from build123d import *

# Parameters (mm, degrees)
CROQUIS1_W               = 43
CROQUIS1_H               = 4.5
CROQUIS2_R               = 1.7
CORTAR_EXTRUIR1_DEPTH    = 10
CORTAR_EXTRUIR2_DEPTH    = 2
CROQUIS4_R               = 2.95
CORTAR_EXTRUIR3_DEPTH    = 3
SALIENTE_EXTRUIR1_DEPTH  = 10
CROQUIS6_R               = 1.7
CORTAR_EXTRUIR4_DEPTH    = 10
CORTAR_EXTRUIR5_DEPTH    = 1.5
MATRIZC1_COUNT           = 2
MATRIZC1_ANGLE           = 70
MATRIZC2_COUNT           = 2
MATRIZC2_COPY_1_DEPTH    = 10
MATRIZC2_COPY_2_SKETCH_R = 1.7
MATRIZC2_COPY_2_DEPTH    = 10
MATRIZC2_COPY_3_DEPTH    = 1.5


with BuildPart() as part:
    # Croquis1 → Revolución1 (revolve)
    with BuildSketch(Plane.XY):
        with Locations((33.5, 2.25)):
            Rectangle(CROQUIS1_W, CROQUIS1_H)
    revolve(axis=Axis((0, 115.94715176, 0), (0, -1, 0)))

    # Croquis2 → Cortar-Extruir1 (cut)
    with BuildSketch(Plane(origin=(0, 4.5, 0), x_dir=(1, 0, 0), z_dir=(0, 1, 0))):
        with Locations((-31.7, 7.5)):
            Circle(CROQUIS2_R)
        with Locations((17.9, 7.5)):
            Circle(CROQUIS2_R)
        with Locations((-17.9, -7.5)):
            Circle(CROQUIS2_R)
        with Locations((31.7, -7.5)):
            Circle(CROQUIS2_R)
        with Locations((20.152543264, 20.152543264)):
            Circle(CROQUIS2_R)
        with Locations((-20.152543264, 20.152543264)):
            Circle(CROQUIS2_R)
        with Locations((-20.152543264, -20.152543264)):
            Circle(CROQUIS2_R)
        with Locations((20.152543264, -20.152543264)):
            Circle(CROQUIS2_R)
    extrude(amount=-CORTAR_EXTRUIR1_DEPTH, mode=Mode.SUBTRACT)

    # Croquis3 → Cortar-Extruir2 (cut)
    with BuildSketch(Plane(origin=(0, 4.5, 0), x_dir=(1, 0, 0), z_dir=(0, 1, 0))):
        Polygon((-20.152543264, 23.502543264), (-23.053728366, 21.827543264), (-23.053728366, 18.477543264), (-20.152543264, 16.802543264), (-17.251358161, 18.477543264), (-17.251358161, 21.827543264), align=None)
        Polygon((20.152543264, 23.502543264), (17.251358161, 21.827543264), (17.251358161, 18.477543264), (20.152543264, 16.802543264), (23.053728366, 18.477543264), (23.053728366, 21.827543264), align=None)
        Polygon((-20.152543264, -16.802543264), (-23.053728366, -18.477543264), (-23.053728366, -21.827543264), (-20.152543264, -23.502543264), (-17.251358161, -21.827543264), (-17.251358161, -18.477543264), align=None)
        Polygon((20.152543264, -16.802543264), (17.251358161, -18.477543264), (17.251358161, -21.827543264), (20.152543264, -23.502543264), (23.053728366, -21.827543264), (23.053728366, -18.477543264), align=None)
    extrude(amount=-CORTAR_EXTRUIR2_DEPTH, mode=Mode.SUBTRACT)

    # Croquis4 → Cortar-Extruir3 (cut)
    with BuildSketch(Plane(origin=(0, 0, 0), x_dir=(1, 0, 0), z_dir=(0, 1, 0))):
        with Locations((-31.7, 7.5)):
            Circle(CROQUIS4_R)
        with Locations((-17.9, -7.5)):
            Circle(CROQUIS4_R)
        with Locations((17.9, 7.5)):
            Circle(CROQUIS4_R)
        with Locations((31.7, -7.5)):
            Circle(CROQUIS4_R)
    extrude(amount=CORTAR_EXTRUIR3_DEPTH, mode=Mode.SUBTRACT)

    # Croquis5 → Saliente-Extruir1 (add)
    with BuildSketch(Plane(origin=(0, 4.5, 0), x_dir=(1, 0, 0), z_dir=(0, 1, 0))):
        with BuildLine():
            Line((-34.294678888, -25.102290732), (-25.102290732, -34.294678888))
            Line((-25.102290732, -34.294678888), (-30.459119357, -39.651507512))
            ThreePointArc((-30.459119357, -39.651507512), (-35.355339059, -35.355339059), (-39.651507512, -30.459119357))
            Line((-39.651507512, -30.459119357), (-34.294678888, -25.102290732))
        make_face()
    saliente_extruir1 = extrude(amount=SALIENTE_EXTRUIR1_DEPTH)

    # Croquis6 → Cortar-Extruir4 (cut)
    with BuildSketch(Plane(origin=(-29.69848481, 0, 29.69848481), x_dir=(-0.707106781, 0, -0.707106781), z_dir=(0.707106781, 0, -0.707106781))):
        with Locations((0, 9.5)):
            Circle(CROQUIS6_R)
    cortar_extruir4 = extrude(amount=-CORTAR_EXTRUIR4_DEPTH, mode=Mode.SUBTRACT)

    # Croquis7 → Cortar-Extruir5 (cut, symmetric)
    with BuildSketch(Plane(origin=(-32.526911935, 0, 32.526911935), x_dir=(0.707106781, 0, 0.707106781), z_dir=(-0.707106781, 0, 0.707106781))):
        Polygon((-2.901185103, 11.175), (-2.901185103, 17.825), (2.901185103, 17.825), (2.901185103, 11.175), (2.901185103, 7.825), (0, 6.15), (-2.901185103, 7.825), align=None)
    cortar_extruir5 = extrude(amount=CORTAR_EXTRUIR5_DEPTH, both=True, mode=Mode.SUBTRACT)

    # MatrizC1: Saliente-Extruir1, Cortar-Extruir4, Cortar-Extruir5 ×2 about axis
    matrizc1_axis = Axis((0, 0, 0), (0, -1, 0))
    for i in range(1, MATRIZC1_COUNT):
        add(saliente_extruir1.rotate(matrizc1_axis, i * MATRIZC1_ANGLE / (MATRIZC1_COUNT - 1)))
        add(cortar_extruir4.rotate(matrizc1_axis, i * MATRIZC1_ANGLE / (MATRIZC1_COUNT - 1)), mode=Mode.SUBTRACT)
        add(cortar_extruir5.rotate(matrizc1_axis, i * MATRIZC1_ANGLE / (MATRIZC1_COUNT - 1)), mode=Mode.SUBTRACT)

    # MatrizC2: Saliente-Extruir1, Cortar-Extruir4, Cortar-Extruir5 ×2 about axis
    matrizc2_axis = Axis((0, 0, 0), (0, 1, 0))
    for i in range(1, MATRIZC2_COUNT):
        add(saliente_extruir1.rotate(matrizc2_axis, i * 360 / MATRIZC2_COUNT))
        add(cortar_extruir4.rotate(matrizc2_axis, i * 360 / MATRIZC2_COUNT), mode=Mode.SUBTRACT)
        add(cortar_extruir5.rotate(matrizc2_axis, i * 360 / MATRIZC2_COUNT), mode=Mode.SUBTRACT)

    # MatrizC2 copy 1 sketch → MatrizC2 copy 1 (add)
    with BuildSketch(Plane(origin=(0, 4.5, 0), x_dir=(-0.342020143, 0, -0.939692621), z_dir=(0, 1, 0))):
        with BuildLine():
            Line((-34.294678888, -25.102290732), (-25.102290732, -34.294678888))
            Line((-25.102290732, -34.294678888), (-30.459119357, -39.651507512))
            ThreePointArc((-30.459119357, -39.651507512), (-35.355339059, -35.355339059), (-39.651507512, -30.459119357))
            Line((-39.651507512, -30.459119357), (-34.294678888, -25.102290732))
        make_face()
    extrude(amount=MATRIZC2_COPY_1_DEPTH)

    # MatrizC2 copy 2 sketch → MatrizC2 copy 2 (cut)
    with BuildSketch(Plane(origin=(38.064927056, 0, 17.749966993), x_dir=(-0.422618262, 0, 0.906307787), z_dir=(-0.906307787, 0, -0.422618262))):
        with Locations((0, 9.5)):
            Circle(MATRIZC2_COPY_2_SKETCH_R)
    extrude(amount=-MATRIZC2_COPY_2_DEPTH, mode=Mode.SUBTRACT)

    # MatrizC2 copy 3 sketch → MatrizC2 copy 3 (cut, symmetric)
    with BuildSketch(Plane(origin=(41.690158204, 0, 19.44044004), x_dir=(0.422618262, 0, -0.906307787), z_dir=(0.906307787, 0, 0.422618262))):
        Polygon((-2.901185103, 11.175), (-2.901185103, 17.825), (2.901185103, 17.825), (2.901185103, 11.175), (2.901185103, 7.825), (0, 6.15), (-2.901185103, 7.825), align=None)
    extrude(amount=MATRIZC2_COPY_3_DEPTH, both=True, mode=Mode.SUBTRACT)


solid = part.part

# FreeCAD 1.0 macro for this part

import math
import FreeCAD as App
import Part
import Sketcher
from FreeCAD import Vector
Q = App.Units.Quantity

doc = App.newDocument("Part")
body = doc.addObject("PartDesign::Body", "Body")

# Sketch on XY plane
sketch1 = doc.addObject("Sketcher::SketchObject", "Sketch")
body.addObject(sketch1)
sketch1.AttachmentSupport = (doc.XY_Plane, [""])
sketch1.MapMode = "FlatFace"
sketch1.addGeometry(Part.LineSegment(Vector(12, 4.5, 0), Vector(12, 0, 0)), False)
sketch1.addGeometry(Part.LineSegment(Vector(12, 0, 0), Vector(55, 0, 0)), False)
sketch1.addGeometry(Part.LineSegment(Vector(55, 0, 0), Vector(55, 4.5, 0)), False)
sketch1.addGeometry(Part.LineSegment(Vector(55, 4.5, 0), Vector(12, 4.5, 0)), False)
sketch1.addConstraint(Sketcher.Constraint("Coincident", 0, 2, 1, 1))
sketch1.addConstraint(Sketcher.Constraint("Coincident", 1, 2, 2, 1))
sketch1.addConstraint(Sketcher.Constraint("Coincident", 2, 2, 3, 1))
sketch1.addConstraint(Sketcher.Constraint("Coincident", 3, 2, 0, 1))
sketch1.addConstraint(Sketcher.Constraint("Vertical", 0))
sketch1.addConstraint(Sketcher.Constraint("Horizontal", 1))
sketch1.addConstraint(Sketcher.Constraint("Vertical", 2))
sketch1.addConstraint(Sketcher.Constraint("Horizontal", 3))
sketch1.addConstraint(Sketcher.Constraint("PointOnObject", 0, 2, -1))
sketch1.addConstraint(Sketcher.Constraint("DistanceX", 1, 1, 1, 2, 43.0))
sketch1.addConstraint(Sketcher.Constraint("DistanceY", 0, 2, 0, 1, 4.5))
sketch1.addConstraint(Sketcher.Constraint("DistanceX", -1, 1, 0, 2, 12.0))
revolution = doc.addObject("PartDesign::Revolution", "Revolution")
body.addObject(revolution)
revolution.Profile = sketch1
revolution.ReferenceAxis = (sketch1, ["V_Axis"])
revolution.Angle = 360

# Sketch on XZ plane
sketch2 = doc.addObject("Sketcher::SketchObject", "Sketch001")
body.addObject(sketch2)
sketch2.AttachmentSupport = (doc.XZ_Plane, [""])
sketch2.MapMode = "FlatFace"
sketch2.AttachmentOffset = App.Placement(Vector(0, 0, -4.5), App.Rotation())
sketch2.addGeometry(Part.Circle(Vector(-31.7, -7.5, 0), Vector(0, 0, 1), 1.7), False)
sketch2.addGeometry(Part.Circle(Vector(17.9, -7.5, 0), Vector(0, 0, 1), 1.7), False)
sketch2.addGeometry(Part.Circle(Vector(-17.9, 7.5, 0), Vector(0, 0, 1), 1.7), False)
sketch2.addGeometry(Part.Circle(Vector(31.7, 7.5, 0), Vector(0, 0, 1), 1.7), False)
sketch2.addGeometry(Part.Circle(Vector(20.2, -20.2, 0), Vector(0, 0, 1), 1.7), False)
sketch2.addGeometry(Part.Circle(Vector(-20.2, -20.2, 0), Vector(0, 0, 1), 1.7), False)
sketch2.addGeometry(Part.Circle(Vector(-20.2, 20.2, 0), Vector(0, 0, 1), 1.7), False)
sketch2.addGeometry(Part.Circle(Vector(20.2, 20.2, 0), Vector(0, 0, 1), 1.7), False)
sketch2.addConstraint(Sketcher.Constraint("Equal", 0, 1))
sketch2.addConstraint(Sketcher.Constraint("Equal", 1, 2))
sketch2.addConstraint(Sketcher.Constraint("Equal", 2, 3))
sketch2.addConstraint(Sketcher.Constraint("Equal", 3, 4))
sketch2.addConstraint(Sketcher.Constraint("Equal", 4, 5))
sketch2.addConstraint(Sketcher.Constraint("Equal", 5, 6))
sketch2.addConstraint(Sketcher.Constraint("Equal", 6, 7))
sketch2.addConstraint(Sketcher.Constraint("Symmetric", 1, 3, 2, 3, -1, 1))
sketch2.addConstraint(Sketcher.Constraint("Symmetric", 0, 3, 3, 3, -1, 1))
sketch2.addConstraint(Sketcher.Constraint("Symmetric", 4, 3, 6, 3, -1, 1))
sketch2.addConstraint(Sketcher.Constraint("Symmetric", 5, 3, 7, 3, -1, 1))
sketch2.addConstraint(Sketcher.Constraint("Symmetric", 4, 3, 5, 3, -2))
sketch2.addConstraint(Sketcher.Constraint("Horizontal", 0, 3, 1, 3))
sketch2.addConstraint(Sketcher.Constraint("Diameter", 0, 3.4))
sketch2.addConstraint(Sketcher.Constraint("DistanceY", 0, 3, 2, 3, 15.0))
sketch2.addConstraint(Sketcher.Constraint("DistanceX", 0, 3, -1, 1, 31.7))
sketch2.addConstraint(Sketcher.Constraint("DistanceX", -1, 1, 1, 3, 17.9))
sketch2.addConstraint(Sketcher.Constraint("DistanceX", -1, 1, 4, 3, 20.152543))
sketch2.addConstraint(Sketcher.Constraint("DistanceY", 4, 3, -1, 1, 20.152543))
pocket1 = doc.addObject("PartDesign::Pocket", "Pocket")
body.addObject(pocket1)
pocket1.Profile = sketch2
pocket1.Length = 10
pocket1.Reversed = True

# Sketch on XZ plane
sketch3 = doc.addObject("Sketcher::SketchObject", "Sketch002")
body.addObject(sketch3)
sketch3.AttachmentSupport = (doc.XZ_Plane, [""])
sketch3.MapMode = "FlatFace"
sketch3.AttachmentOffset = App.Placement(Vector(0, 0, -4.5), App.Rotation())
sketch3.addGeometry(Part.LineSegment(Vector(-20.2, -23.5, 0), Vector(-23.1, -21.8, 0)), False)
sketch3.addGeometry(Part.LineSegment(Vector(-23.1, -21.8, 0), Vector(-23.1, -18.5, 0)), False)
sketch3.addGeometry(Part.LineSegment(Vector(-23.1, -18.5, 0), Vector(-20.2, -16.8, 0)), False)
sketch3.addGeometry(Part.LineSegment(Vector(-20.2, -16.8, 0), Vector(-17.3, -18.5, 0)), False)
sketch3.addGeometry(Part.LineSegment(Vector(-17.3, -18.5, 0), Vector(-17.3, -21.8, 0)), False)
sketch3.addGeometry(Part.LineSegment(Vector(-17.3, -21.8, 0), Vector(-20.2, -23.5, 0)), False)
sketch3.addGeometry(Part.LineSegment(Vector(20.2, -23.5, 0), Vector(17.3, -21.8, 0)), False)
sketch3.addGeometry(Part.LineSegment(Vector(17.3, -21.8, 0), Vector(17.3, -18.5, 0)), False)
sketch3.addGeometry(Part.LineSegment(Vector(17.3, -18.5, 0), Vector(20.2, -16.8, 0)), False)
sketch3.addGeometry(Part.LineSegment(Vector(20.2, -16.8, 0), Vector(23.1, -18.5, 0)), False)
sketch3.addGeometry(Part.LineSegment(Vector(23.1, -18.5, 0), Vector(23.1, -21.8, 0)), False)
sketch3.addGeometry(Part.LineSegment(Vector(23.1, -21.8, 0), Vector(20.2, -23.5, 0)), False)
sketch3.addGeometry(Part.LineSegment(Vector(-20.2, 16.8, 0), Vector(-23.1, 18.5, 0)), False)
sketch3.addGeometry(Part.LineSegment(Vector(-23.1, 18.5, 0), Vector(-23.1, 21.8, 0)), False)
sketch3.addGeometry(Part.LineSegment(Vector(-23.1, 21.8, 0), Vector(-20.2, 23.5, 0)), False)
sketch3.addGeometry(Part.LineSegment(Vector(-20.2, 23.5, 0), Vector(-17.3, 21.8, 0)), False)
sketch3.addGeometry(Part.LineSegment(Vector(-17.3, 21.8, 0), Vector(-17.3, 18.5, 0)), False)
sketch3.addGeometry(Part.LineSegment(Vector(-17.3, 18.5, 0), Vector(-20.2, 16.8, 0)), False)
sketch3.addGeometry(Part.LineSegment(Vector(20.2, 16.8, 0), Vector(17.3, 18.5, 0)), False)
sketch3.addGeometry(Part.LineSegment(Vector(17.3, 18.5, 0), Vector(17.3, 21.8, 0)), False)
sketch3.addGeometry(Part.LineSegment(Vector(17.3, 21.8, 0), Vector(20.2, 23.5, 0)), False)
sketch3.addGeometry(Part.LineSegment(Vector(20.2, 23.5, 0), Vector(23.1, 21.8, 0)), False)
sketch3.addGeometry(Part.LineSegment(Vector(23.1, 21.8, 0), Vector(23.1, 18.5, 0)), False)
sketch3.addGeometry(Part.LineSegment(Vector(23.1, 18.5, 0), Vector(20.2, 16.8, 0)), False)
sketch3.addConstraint(Sketcher.Constraint("Coincident", 0, 2, 1, 1))
sketch3.addConstraint(Sketcher.Constraint("Coincident", 1, 2, 2, 1))
sketch3.addConstraint(Sketcher.Constraint("Coincident", 2, 2, 3, 1))
sketch3.addConstraint(Sketcher.Constraint("Coincident", 3, 2, 4, 1))
sketch3.addConstraint(Sketcher.Constraint("Coincident", 4, 2, 5, 1))
sketch3.addConstraint(Sketcher.Constraint("Coincident", 5, 2, 0, 1))
sketch3.addConstraint(Sketcher.Constraint("Coincident", 6, 2, 7, 1))
sketch3.addConstraint(Sketcher.Constraint("Coincident", 7, 2, 8, 1))
sketch3.addConstraint(Sketcher.Constraint("Coincident", 8, 2, 9, 1))
sketch3.addConstraint(Sketcher.Constraint("Coincident", 9, 2, 10, 1))
sketch3.addConstraint(Sketcher.Constraint("Coincident", 10, 2, 11, 1))
sketch3.addConstraint(Sketcher.Constraint("Coincident", 11, 2, 6, 1))
sketch3.addConstraint(Sketcher.Constraint("Coincident", 12, 2, 13, 1))
sketch3.addConstraint(Sketcher.Constraint("Coincident", 13, 2, 14, 1))
sketch3.addConstraint(Sketcher.Constraint("Coincident", 14, 2, 15, 1))
sketch3.addConstraint(Sketcher.Constraint("Coincident", 15, 2, 16, 1))
sketch3.addConstraint(Sketcher.Constraint("Coincident", 16, 2, 17, 1))
sketch3.addConstraint(Sketcher.Constraint("Coincident", 17, 2, 12, 1))
sketch3.addConstraint(Sketcher.Constraint("Coincident", 18, 2, 19, 1))
sketch3.addConstraint(Sketcher.Constraint("Coincident", 19, 2, 20, 1))
sketch3.addConstraint(Sketcher.Constraint("Coincident", 20, 2, 21, 1))
sketch3.addConstraint(Sketcher.Constraint("Coincident", 21, 2, 22, 1))
sketch3.addConstraint(Sketcher.Constraint("Coincident", 22, 2, 23, 1))
sketch3.addConstraint(Sketcher.Constraint("Coincident", 23, 2, 18, 1))
sketch3.addConstraint(Sketcher.Constraint("Vertical", 1))
sketch3.addConstraint(Sketcher.Constraint("Vertical", 4))
sketch3.addConstraint(Sketcher.Constraint("Vertical", 7))
sketch3.addConstraint(Sketcher.Constraint("Vertical", 10))
sketch3.addConstraint(Sketcher.Constraint("Vertical", 13))
sketch3.addConstraint(Sketcher.Constraint("Vertical", 16))
sketch3.addConstraint(Sketcher.Constraint("Vertical", 19))
sketch3.addConstraint(Sketcher.Constraint("Vertical", 22))
sketch3.addConstraint(Sketcher.Constraint("Symmetric", 9, 2, 12, 2, -1, 1))
sketch3.addConstraint(Sketcher.Constraint("Symmetric", 11, 2, 14, 2, -1, 1))
sketch3.addConstraint(Sketcher.Constraint("Symmetric", 6, 2, 15, 2, -1, 1))
sketch3.addConstraint(Sketcher.Constraint("Symmetric", 8, 2, 17, 2, -1, 1))
sketch3.addConstraint(Sketcher.Constraint("Symmetric", 3, 2, 18, 2, -1, 1))
sketch3.addConstraint(Sketcher.Constraint("Symmetric", 5, 2, 20, 2, -1, 1))
sketch3.addConstraint(Sketcher.Constraint("Symmetric", 0, 2, 21, 2, -1, 1))
sketch3.addConstraint(Sketcher.Constraint("Symmetric", 2, 2, 23, 2, -1, 1))
sketch3.addConstraint(Sketcher.Constraint("Symmetric", 4, 2, 6, 2, -2))
sketch3.addConstraint(Sketcher.Constraint("Symmetric", 2, 2, 8, 2, -2))
sketch3.addConstraint(Sketcher.Constraint("Symmetric", 1, 2, 9, 2, -2))
sketch3.addConstraint(Sketcher.Constraint("Symmetric", 5, 2, 11, 2, -2))
sketch3.addConstraint(Sketcher.Constraint("Parallel", 0, 3))
sketch3.addConstraint(Sketcher.Constraint("Parallel", 2, 5))
sketch3.addConstraint(Sketcher.Constraint("Parallel", 3, 6))
sketch3.addConstraint(Sketcher.Constraint("Parallel", 5, 8))
sketch3.addConstraint(Sketcher.Constraint("Parallel", 8, 11))
sketch3.addConstraint(Sketcher.Constraint("Parallel", 11, 14))
sketch3.addConstraint(Sketcher.Constraint("Parallel", 14, 17))
sketch3.addConstraint(Sketcher.Constraint("Parallel", 17, 20))
sketch3.addConstraint(Sketcher.Constraint("Parallel", 20, 23))
sketch3.addConstraint(Sketcher.Constraint("Horizontal", 1, 2, 3, 2))
sketch3.addConstraint(Sketcher.Constraint("Horizontal", 0, 2, 4, 2))
sketch3.addConstraint(Sketcher.Constraint("Angle", 0, Q("150 deg")))
sketch3.addConstraint(Sketcher.Constraint("DistanceY", 1, 1, 1, 2, 3.35))
sketch3.addConstraint(Sketcher.Constraint("DistanceY", 5, 2, 2, 2, 6.7))
sketch3.addConstraint(Sketcher.Constraint("DistanceX", 5, 2, 6, 2, 37.403901))
sketch3.addConstraint(Sketcher.Constraint("DistanceY", 0, 2, -1, 1, 21.827543))
pocket2 = doc.addObject("PartDesign::Pocket", "Pocket001")
body.addObject(pocket2)
pocket2.Profile = sketch3
pocket2.Length = 2
pocket2.Reversed = True

# Sketch on XZ plane
sketch4 = doc.addObject("Sketcher::SketchObject", "Sketch003")
body.addObject(sketch4)
sketch4.AttachmentSupport = (doc.XZ_Plane, [""])
sketch4.MapMode = "FlatFace"
sketch4.addGeometry(Part.Circle(Vector(-31.7, -7.5, 0), Vector(0, 0, 1), 3), False)
sketch4.addGeometry(Part.Circle(Vector(-17.9, 7.5, 0), Vector(0, 0, 1), 3), False)
sketch4.addGeometry(Part.Circle(Vector(17.9, -7.5, 0), Vector(0, 0, 1), 3), False)
sketch4.addGeometry(Part.Circle(Vector(31.7, 7.5, 0), Vector(0, 0, 1), 3), False)
sketch4.addConstraint(Sketcher.Constraint("Equal", 0, 1))
sketch4.addConstraint(Sketcher.Constraint("Equal", 1, 2))
sketch4.addConstraint(Sketcher.Constraint("Equal", 2, 3))
sketch4.addConstraint(Sketcher.Constraint("Symmetric", 1, 3, 2, 3, -1, 1))
sketch4.addConstraint(Sketcher.Constraint("Symmetric", 0, 3, 3, 3, -1, 1))
sketch4.addConstraint(Sketcher.Constraint("Horizontal", 0, 3, 2, 3))
sketch4.addConstraint(Sketcher.Constraint("Diameter", 0, 5.9))
sketch4.addConstraint(Sketcher.Constraint("DistanceY", 0, 3, 1, 3, 15.0))
sketch4.addConstraint(Sketcher.Constraint("DistanceX", 0, 3, -1, 1, 31.7))
sketch4.addConstraint(Sketcher.Constraint("DistanceX", 1, 3, -1, 1, 17.9))
pocket3 = doc.addObject("PartDesign::Pocket", "Pocket002")
body.addObject(pocket3)
pocket3.Profile = sketch4
pocket3.Length = 3

# Sketch on XZ plane
sketch5 = doc.addObject("Sketcher::SketchObject", "Sketch004")
body.addObject(sketch5)
sketch5.AttachmentSupport = (doc.XZ_Plane, [""])
sketch5.MapMode = "FlatFace"
sketch5.AttachmentOffset = App.Placement(Vector(0, 0, -4.5), App.Rotation())
sketch5.addGeometry(Part.LineSegment(Vector(-25, 34, 0), Vector(-34, 25, 0)), False)
sketch5.addGeometry(Part.LineSegment(Vector(-34, 25, 0), Vector(-40, 30, 0)), False)
sketch5.addGeometry(Part.ArcOfCircle(Part.Circle(Vector(0, 0, 0), Vector(0, 0, 1), 50), math.radians(127.53), math.radians(142.47)), False)
sketch5.addGeometry(Part.LineSegment(Vector(-30, 40, 0), Vector(-25, 34, 0)), False)
sketch5.addConstraint(Sketcher.Constraint("Coincident", 0, 2, 1, 1))
sketch5.addConstraint(Sketcher.Constraint("Coincident", 1, 2, 2, 2))
sketch5.addConstraint(Sketcher.Constraint("Coincident", 2, 1, 3, 1))
sketch5.addConstraint(Sketcher.Constraint("Coincident", 3, 2, 0, 1))
sketch5.addConstraint(Sketcher.Constraint("Coincident", 2, 3, -1, 1))
sketch5.addConstraint(Sketcher.Constraint("Perpendicular", 0, 1))
sketch5.addConstraint(Sketcher.Constraint("Parallel", 1, 3))
sketch5.addConstraint(Sketcher.Constraint("Equal", 1, 3))
sketch5.addConstraint(Sketcher.Constraint("Radius", 2, 50.0))
sketch5.addConstraint(Sketcher.Constraint("Angle", 0, Q("-135 deg")))
sketch5.addConstraint(Sketcher.Constraint("Distance", 0, 13.0))
sketch5.addConstraint(Sketcher.Constraint("Distance", 1, 7.5757))
pad1 = doc.addObject("PartDesign::Pad", "Pad")
body.addObject(pad1)
pad1.Profile = sketch5
pad1.Length = 10
pad1.Reversed = True

# Sketch on an angled plane
sketch6 = doc.addObject("Sketcher::SketchObject", "Sketch005")
body.addObject(sketch6)
sketch6.Placement = App.Placement(Vector(-29.698485, 0, 29.698485), App.Rotation(Vector(-0.707106781, 0, -0.707106781), Vector(0, 0.999999999, 0), Vector(0.707106781, 0, -0.707106781), "ZXY"))
sketch6.addGeometry(Part.Circle(Vector(0, 9.5, 0), Vector(0, 0, 1), 1.7), False)
sketch6.addConstraint(Sketcher.Constraint("PointOnObject", 0, 3, -2))
sketch6.addConstraint(Sketcher.Constraint("Diameter", 0, 3.4))
sketch6.addConstraint(Sketcher.Constraint("DistanceY", -1, 1, 0, 3, 9.5))
pocket4 = doc.addObject("PartDesign::Pocket", "Pocket003")
body.addObject(pocket4)
pocket4.Profile = sketch6
pocket4.Length = 10

# Sketch on an angled plane
sketch7 = doc.addObject("Sketcher::SketchObject", "Sketch006")
body.addObject(sketch7)
sketch7.Placement = App.Placement(Vector(-32.526912, 0, 32.526912), App.Rotation(Vector(0.707106781, 0, 0.707106781), Vector(0, 0.999999999, 0), Vector(-0.707106781, 0, 0.707106781), "ZXY"))
sketch7.addGeometry(Part.LineSegment(Vector(-2.9, 17.8, 0), Vector(-2.9, 7.8, 0)), False)
sketch7.addGeometry(Part.LineSegment(Vector(-2.9, 7.8, 0), Vector(0, 6.1, 0)), False)
sketch7.addGeometry(Part.LineSegment(Vector(0, 6.1, 0), Vector(2.9, 7.8, 0)), False)
sketch7.addGeometry(Part.LineSegment(Vector(2.9, 7.8, 0), Vector(2.9, 17.8, 0)), False)
sketch7.addGeometry(Part.LineSegment(Vector(2.9, 17.8, 0), Vector(-2.9, 17.8, 0)), False)
sketch7.addConstraint(Sketcher.Constraint("Coincident", 0, 2, 1, 1))
sketch7.addConstraint(Sketcher.Constraint("Coincident", 1, 2, 2, 1))
sketch7.addConstraint(Sketcher.Constraint("Coincident", 2, 2, 3, 1))
sketch7.addConstraint(Sketcher.Constraint("Coincident", 3, 2, 4, 1))
sketch7.addConstraint(Sketcher.Constraint("Coincident", 4, 2, 0, 1))
sketch7.addConstraint(Sketcher.Constraint("Vertical", 0))
sketch7.addConstraint(Sketcher.Constraint("Vertical", 3))
sketch7.addConstraint(Sketcher.Constraint("Horizontal", 4))
sketch7.addConstraint(Sketcher.Constraint("Symmetric", 0, 2, 2, 2, -2))
sketch7.addConstraint(Sketcher.Constraint("PointOnObject", 1, 2, -2))
sketch7.addConstraint(Sketcher.Constraint("DistanceY", 0, 2, 0, 1, 10.0))
sketch7.addConstraint(Sketcher.Constraint("Angle", 1, Q("-30 deg")))
sketch7.addConstraint(Sketcher.Constraint("Distance", 1, 3.35))
sketch7.addConstraint(Sketcher.Constraint("DistanceY", -1, 1, 1, 2, 6.15))
pocket5 = doc.addObject("PartDesign::Pocket", "Pocket004")
body.addObject(pocket5)
pocket5.Profile = sketch7
pocket5.Length = 3
pocket5.Midplane = True
doc.recompute()

polarpattern = doc.addObject("PartDesign::PolarPattern", "PolarPattern")
body.addObject(polarpattern)
polarpattern.Originals = [pad1, pocket4, pocket5]
polarpattern.Axis = (doc.Y_Axis, [""])
polarpattern.Angle = 70
polarpattern.Occurrences = 2
polarpattern.Reversed = True
body.Tip = polarpattern
doc.recompute()

polarpattern2 = doc.addObject("PartDesign::PolarPattern", "PolarPattern001")
body.addObject(polarpattern2)
polarpattern2.Originals = [pad1, pocket4, pocket5]
polarpattern2.Axis = (doc.Y_Axis, [""])
polarpattern2.Angle = 360
polarpattern2.Occurrences = 2
body.Tip = polarpattern2

# Sketch on XZ plane
sketch8 = doc.addObject("Sketcher::SketchObject", "Sketch007")
body.addObject(sketch8)
sketch8.AttachmentSupport = (doc.XZ_Plane, [""])
sketch8.MapMode = "FlatFace"
sketch8.AttachmentOffset = App.Placement(Vector(0, 0, -4.5), App.Rotation())
sketch8.addGeometry(Part.LineSegment(Vector(41, 12, 0), Vector(35, 24, 0)), False)
sketch8.addGeometry(Part.LineSegment(Vector(35, 24, 0), Vector(42, 27, 0)), False)
sketch8.addGeometry(Part.ArcOfCircle(Part.Circle(Vector(0, 0, 0), Vector(0, 0, 1), 50), math.radians(17.53), math.radians(32.47)), False)
sketch8.addGeometry(Part.LineSegment(Vector(48, 15, 0), Vector(41, 12, 0)), False)
sketch8.addConstraint(Sketcher.Constraint("Coincident", 0, 2, 1, 1))
sketch8.addConstraint(Sketcher.Constraint("Coincident", 1, 2, 2, 2))
sketch8.addConstraint(Sketcher.Constraint("Coincident", 2, 1, 3, 1))
sketch8.addConstraint(Sketcher.Constraint("Coincident", 3, 2, 0, 1))
sketch8.addConstraint(Sketcher.Constraint("Coincident", 2, 3, -1, 1))
sketch8.addConstraint(Sketcher.Constraint("Perpendicular", 0, 1))
sketch8.addConstraint(Sketcher.Constraint("Parallel", 1, 3))
sketch8.addConstraint(Sketcher.Constraint("Equal", 1, 3))
sketch8.addConstraint(Sketcher.Constraint("Radius", 2, 50.0))
sketch8.addConstraint(Sketcher.Constraint("Angle", 0, Q("115 deg")))
sketch8.addConstraint(Sketcher.Constraint("Distance", 0, 13.0))
sketch8.addConstraint(Sketcher.Constraint("Distance", 1, 7.5757))
pad2 = doc.addObject("PartDesign::Pad", "Pad001")
body.addObject(pad2)
pad2.Profile = sketch8
pad2.Length = 10
pad2.Reversed = True

# Sketch on an angled plane
sketch9 = doc.addObject("Sketcher::SketchObject", "Sketch008")
body.addObject(sketch9)
sketch9.Placement = App.Placement(Vector(38.064927, 0, 17.749967), App.Rotation(Vector(-0.422618262, 0, 0.906307787), Vector(0, 1, 0), Vector(-0.906307787, 0, -0.422618262), "ZXY"))
sketch9.addGeometry(Part.Circle(Vector(0, 9.5, 0), Vector(0, 0, 1), 1.7), False)
sketch9.addConstraint(Sketcher.Constraint("PointOnObject", 0, 3, -2))
sketch9.addConstraint(Sketcher.Constraint("Diameter", 0, 3.4))
sketch9.addConstraint(Sketcher.Constraint("DistanceY", -1, 1, 0, 3, 9.5))
pocket6 = doc.addObject("PartDesign::Pocket", "Pocket005")
body.addObject(pocket6)
pocket6.Profile = sketch9
pocket6.Length = 10

# Sketch on an angled plane
sketch10 = doc.addObject("Sketcher::SketchObject", "Sketch009")
body.addObject(sketch10)
sketch10.Placement = App.Placement(Vector(41.690158, 0, 19.44044), App.Rotation(Vector(0.422618262, 0, -0.906307787), Vector(0, 1, 0), Vector(0.906307787, 0, 0.422618262), "ZXY"))
sketch10.addGeometry(Part.LineSegment(Vector(-2.9, 17.8, 0), Vector(-2.9, 7.8, 0)), False)
sketch10.addGeometry(Part.LineSegment(Vector(-2.9, 7.8, 0), Vector(0, 6.2, 0)), False)
sketch10.addGeometry(Part.LineSegment(Vector(0, 6.2, 0), Vector(2.9, 7.8, 0)), False)
sketch10.addGeometry(Part.LineSegment(Vector(2.9, 7.8, 0), Vector(2.9, 17.8, 0)), False)
sketch10.addGeometry(Part.LineSegment(Vector(2.9, 17.8, 0), Vector(-2.9, 17.8, 0)), False)
sketch10.addConstraint(Sketcher.Constraint("Coincident", 0, 2, 1, 1))
sketch10.addConstraint(Sketcher.Constraint("Coincident", 1, 2, 2, 1))
sketch10.addConstraint(Sketcher.Constraint("Coincident", 2, 2, 3, 1))
sketch10.addConstraint(Sketcher.Constraint("Coincident", 3, 2, 4, 1))
sketch10.addConstraint(Sketcher.Constraint("Coincident", 4, 2, 0, 1))
sketch10.addConstraint(Sketcher.Constraint("Vertical", 0))
sketch10.addConstraint(Sketcher.Constraint("Vertical", 3))
sketch10.addConstraint(Sketcher.Constraint("Horizontal", 4))
sketch10.addConstraint(Sketcher.Constraint("Symmetric", 0, 2, 2, 2, -2))
sketch10.addConstraint(Sketcher.Constraint("PointOnObject", 1, 2, -2))
sketch10.addConstraint(Sketcher.Constraint("DistanceY", 0, 2, 0, 1, 10.0))
sketch10.addConstraint(Sketcher.Constraint("Angle", 1, Q("-30 deg")))
sketch10.addConstraint(Sketcher.Constraint("Distance", 1, 3.35))
sketch10.addConstraint(Sketcher.Constraint("DistanceY", -1, 1, 1, 2, 6.15))
pocket7 = doc.addObject("PartDesign::Pocket", "Pocket006")
body.addObject(pocket7)
pocket7.Profile = sketch10
pocket7.Length = 3
pocket7.Midplane = True

doc.recompute()
